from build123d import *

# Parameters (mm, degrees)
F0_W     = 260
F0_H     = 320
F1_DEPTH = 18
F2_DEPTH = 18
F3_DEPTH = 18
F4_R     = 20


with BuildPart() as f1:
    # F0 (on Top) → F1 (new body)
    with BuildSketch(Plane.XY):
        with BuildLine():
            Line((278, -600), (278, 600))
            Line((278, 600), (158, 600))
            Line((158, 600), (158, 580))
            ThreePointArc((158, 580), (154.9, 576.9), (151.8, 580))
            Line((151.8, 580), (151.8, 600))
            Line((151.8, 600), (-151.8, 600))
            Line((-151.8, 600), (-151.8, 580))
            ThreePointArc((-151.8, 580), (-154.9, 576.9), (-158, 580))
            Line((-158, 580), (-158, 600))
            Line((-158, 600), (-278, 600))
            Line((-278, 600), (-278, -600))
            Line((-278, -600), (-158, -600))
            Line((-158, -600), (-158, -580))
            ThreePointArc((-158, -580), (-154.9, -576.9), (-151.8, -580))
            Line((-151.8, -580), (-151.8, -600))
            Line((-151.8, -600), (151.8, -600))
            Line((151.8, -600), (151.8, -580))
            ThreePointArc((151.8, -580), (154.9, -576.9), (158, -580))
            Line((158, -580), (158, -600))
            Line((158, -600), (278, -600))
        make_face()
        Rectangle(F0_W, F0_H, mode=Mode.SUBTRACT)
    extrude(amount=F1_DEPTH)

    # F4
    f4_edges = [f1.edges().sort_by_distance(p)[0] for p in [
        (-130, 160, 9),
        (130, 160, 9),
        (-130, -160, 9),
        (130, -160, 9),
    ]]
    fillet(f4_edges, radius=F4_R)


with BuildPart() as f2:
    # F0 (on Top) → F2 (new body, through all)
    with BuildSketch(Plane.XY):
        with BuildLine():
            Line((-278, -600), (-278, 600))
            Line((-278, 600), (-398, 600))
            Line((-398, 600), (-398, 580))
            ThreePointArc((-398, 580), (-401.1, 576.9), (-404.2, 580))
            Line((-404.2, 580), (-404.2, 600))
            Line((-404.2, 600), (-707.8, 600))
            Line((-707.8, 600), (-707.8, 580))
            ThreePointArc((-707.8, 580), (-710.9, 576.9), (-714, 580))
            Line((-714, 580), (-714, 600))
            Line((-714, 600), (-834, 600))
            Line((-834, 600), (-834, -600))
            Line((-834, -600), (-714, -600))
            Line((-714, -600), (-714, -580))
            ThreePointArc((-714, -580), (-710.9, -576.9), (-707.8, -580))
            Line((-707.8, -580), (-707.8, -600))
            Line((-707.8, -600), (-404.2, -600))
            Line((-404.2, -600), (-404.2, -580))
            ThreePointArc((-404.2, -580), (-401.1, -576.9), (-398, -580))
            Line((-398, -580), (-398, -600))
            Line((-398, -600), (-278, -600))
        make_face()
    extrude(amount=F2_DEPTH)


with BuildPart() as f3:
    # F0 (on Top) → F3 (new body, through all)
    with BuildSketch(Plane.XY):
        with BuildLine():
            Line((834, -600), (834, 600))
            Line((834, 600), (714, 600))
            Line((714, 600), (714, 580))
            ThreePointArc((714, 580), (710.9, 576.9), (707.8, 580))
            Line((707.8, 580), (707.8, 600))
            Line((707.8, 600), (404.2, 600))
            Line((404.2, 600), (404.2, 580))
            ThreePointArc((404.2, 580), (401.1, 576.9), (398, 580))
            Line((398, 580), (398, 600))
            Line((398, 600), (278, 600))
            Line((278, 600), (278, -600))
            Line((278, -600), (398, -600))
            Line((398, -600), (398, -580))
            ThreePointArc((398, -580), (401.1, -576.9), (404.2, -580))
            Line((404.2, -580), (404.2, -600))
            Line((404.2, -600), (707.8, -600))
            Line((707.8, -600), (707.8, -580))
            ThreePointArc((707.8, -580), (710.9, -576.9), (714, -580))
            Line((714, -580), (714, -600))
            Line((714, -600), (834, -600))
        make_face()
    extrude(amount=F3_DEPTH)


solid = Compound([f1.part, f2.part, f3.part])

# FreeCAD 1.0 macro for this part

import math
import FreeCAD as App
import Part
import Sketcher
from FreeCAD import Vector


def edges_at(feature, points):
    """Names of the edges that pass closest to the given points."""
    edges = feature.Shape.Edges
    near = lambda p: min(range(len(edges)), key=lambda i: edges[i].distToShape(Part.Vertex(*p))[0])
    return sorted({f"Edge{near(p) + 1}" for p in points})

doc = App.newDocument("Part")
body = doc.addObject("PartDesign::Body", "Body")

# Sketch on XY plane
sketch1 = body.newObject("Sketcher::SketchObject", "Sketch")
sketch1.AttachmentSupport = (doc.getObject("XY_Plane"), [""])
sketch1.MapMode = "FlatFace"
sketch1.addGeometry([
    Part.LineSegment(Vector(278, -600, 0), Vector(278, 600, 0)),  # 0
    Part.LineSegment(Vector(278, 600, 0), Vector(158, 600, 0)),  # 1
    Part.LineSegment(Vector(158, 600, 0), Vector(158, 580, 0)),  # 2
    Part.ArcOfCircle(Part.Circle(Vector(154.9, 580, 0), Vector(0, 0, 1), 3.1), math.radians(180), math.radians(360)),  # 3
    Part.LineSegment(Vector(151.8, 580, 0), Vector(151.8, 600, 0)),  # 4
    Part.LineSegment(Vector(151.8, 600, 0), Vector(-151.8, 600, 0)),  # 5
    Part.LineSegment(Vector(-151.8, 600, 0), Vector(-151.8, 580, 0)),  # 6
    Part.ArcOfCircle(Part.Circle(Vector(-154.9, 580, 0), Vector(0, 0, 1), 3.1), math.radians(180), math.radians(360)),  # 7
    Part.LineSegment(Vector(-158, 580, 0), Vector(-158, 600, 0)),  # 8
    Part.LineSegment(Vector(-158, 600, 0), Vector(-278, 600, 0)),  # 9
    Part.LineSegment(Vector(-278, 600, 0), Vector(-278, -600, 0)),  # 10
    Part.LineSegment(Vector(-278, -600, 0), Vector(-158, -600, 0)),  # 11
    Part.LineSegment(Vector(-158, -600, 0), Vector(-158, -580, 0)),  # 12
    Part.ArcOfCircle(Part.Circle(Vector(-154.9, -580, 0), Vector(0, 0, 1), 3.1), math.radians(0), math.radians(180)),  # 13
    Part.LineSegment(Vector(-151.8, -580, 0), Vector(-151.8, -600, 0)),  # 14
    Part.LineSegment(Vector(-151.8, -600, 0), Vector(151.8, -600, 0)),  # 15
    Part.LineSegment(Vector(151.8, -600, 0), Vector(151.8, -580, 0)),  # 16
    Part.ArcOfCircle(Part.Circle(Vector(154.9, -580, 0), Vector(0, 0, 1), 3.1), math.radians(0), math.radians(180)),  # 17
    Part.LineSegment(Vector(158, -580, 0), Vector(158, -600, 0)),  # 18
    Part.LineSegment(Vector(158, -600, 0), Vector(278, -600, 0)),  # 19
    Part.LineSegment(Vector(130, -160, 0), Vector(-130, -160, 0)),  # 20
    Part.LineSegment(Vector(-130, -160, 0), Vector(-130, 160, 0)),  # 21
    Part.LineSegment(Vector(-130, 160, 0), Vector(130, 160, 0)),  # 22
    Part.LineSegment(Vector(130, 160, 0), Vector(130, -160, 0)),  # 23
], False)
sketch1.addConstraint([
    Sketcher.Constraint("Coincident", 0, 2, 1, 1),
    Sketcher.Constraint("Coincident", 1, 2, 2, 1),
    Sketcher.Constraint("Tangent", 2, 2, 3, 2),
    Sketcher.Constraint("Tangent", 3, 1, 4, 1),
    Sketcher.Constraint("Coincident", 4, 2, 5, 1),
    Sketcher.Constraint("Coincident", 5, 2, 6, 1),
    Sketcher.Constraint("Tangent", 6, 2, 7, 2),
    Sketcher.Constraint("Tangent", 7, 1, 8, 1),
    Sketcher.Constraint("Coincident", 8, 2, 9, 1),
    Sketcher.Constraint("Coincident", 9, 2, 10, 1),
    Sketcher.Constraint("Coincident", 10, 2, 11, 1),
    Sketcher.Constraint("Coincident", 11, 2, 12, 1),
    Sketcher.Constraint("Tangent", 12, 2, 13, 2),
    Sketcher.Constraint("Tangent", 13, 1, 14, 1),
    Sketcher.Constraint("Coincident", 14, 2, 15, 1),
    Sketcher.Constraint("Coincident", 15, 2, 16, 1),
    Sketcher.Constraint("Tangent", 16, 2, 17, 2),
    Sketcher.Constraint("Tangent", 17, 1, 18, 1),
    Sketcher.Constraint("Coincident", 18, 2, 19, 1),
    Sketcher.Constraint("Coincident", 19, 2, 0, 1),
    Sketcher.Constraint("Coincident", 20, 2, 21, 1),
    Sketcher.Constraint("Coincident", 21, 2, 22, 1),
    Sketcher.Constraint("Coincident", 22, 2, 23, 1),
    Sketcher.Constraint("Coincident", 23, 2, 20, 1),
    Sketcher.Constraint("Vertical", 0),
    Sketcher.Constraint("Horizontal", 1),
    Sketcher.Constraint("Vertical", 2),
    Sketcher.Constraint("Vertical", 4),
    Sketcher.Constraint("Horizontal", 5),
    Sketcher.Constraint("Vertical", 6),
    Sketcher.Constraint("Vertical", 8),
    Sketcher.Constraint("Horizontal", 9),
    Sketcher.Constraint("Vertical", 10),
    Sketcher.Constraint("Horizontal", 11),
    Sketcher.Constraint("Vertical", 12),
    Sketcher.Constraint("Vertical", 14),
    Sketcher.Constraint("Horizontal", 15),
    Sketcher.Constraint("Vertical", 16),
    Sketcher.Constraint("Vertical", 18),
    Sketcher.Constraint("Horizontal", 19),
    Sketcher.Constraint("Horizontal", 20),
    Sketcher.Constraint("Vertical", 21),
    Sketcher.Constraint("Horizontal", 22),
    Sketcher.Constraint("Vertical", 23),
    Sketcher.Constraint("Equal", 3, 7),
    Sketcher.Constraint("Equal", 7, 13),
    Sketcher.Constraint("Equal", 13, 17),
    Sketcher.Constraint("Symmetric", 3, 3, 13, 3, -1, 1),
    Sketcher.Constraint("Symmetric", 7, 3, 17, 3, -1, 1),
    Sketcher.Constraint("Symmetric", 0, 2, 10, 2, -1, 1),
    Sketcher.Constraint("Symmetric", 20, 2, 22, 2, -1, 1),
    Sketcher.Constraint("Symmetric", 3, 3, 7, 3, -2),
    Sketcher.Constraint("Horizontal", 1, 2, 4, 2),
    Sketcher.Constraint("Horizontal", 5, 2, 8, 2),
    Sketcher.Constraint("Horizontal", 11, 2, 14, 2),
    Sketcher.Constraint("Horizontal", 15, 2, 18, 2),
    Sketcher.Constraint("Radius", 3, 3.1),
    Sketcher.Constraint("DistanceX", 1, 2, 1, 1, 120.0),
    Sketcher.Constraint("DistanceX", 20, 2, 20, 1, 260.0),
    Sketcher.Constraint("DistanceY", 0, 1, 0, 2, 1200.0),
    Sketcher.Constraint("DistanceY", 2, 2, 2, 1, 20.0),
    Sketcher.Constraint("DistanceY", 21, 1, 21, 2, 320.0),
    Sketcher.Constraint("DistanceX", 5, 2, 5, 1, 303.6),
])
pad1 = body.newObject("PartDesign::Pad", "Pad")
pad1.Profile = sketch1
pad1.Length = 18
doc.recompute()

fillet = body.newObject("PartDesign::Fillet", "Fillet")
fillet.Base = (pad1, edges_at(pad1, [
    (-130, 160, 9),
    (130, 160, 9),
    (-130, -160, 9),
    (130, -160, 9),
]))
fillet.Radius = 20
body2 = doc.addObject("PartDesign::Body", "Body001")

# Sketch on XY plane
sketch2 = body2.newObject("Sketcher::SketchObject", "Sketch001")
sketch2.AttachmentSupport = (doc.getObject("XY_Plane001"), [""])
sketch2.MapMode = "FlatFace"
sketch2.addGeometry([
    Part.LineSegment(Vector(-278, -600, 0), Vector(-278, 600, 0)),  # 0
    Part.LineSegment(Vector(-278, 600, 0), Vector(-398, 600, 0)),  # 1
    Part.LineSegment(Vector(-398, 600, 0), Vector(-398, 580, 0)),  # 2
    Part.ArcOfCircle(Part.Circle(Vector(-401.1, 580, 0), Vector(0, 0, 1), 3.1), math.radians(180), math.radians(360)),  # 3
    Part.LineSegment(Vector(-404.2, 580, 0), Vector(-404.2, 600, 0)),  # 4
    Part.LineSegment(Vector(-404.2, 600, 0), Vector(-707.8, 600, 0)),  # 5
    Part.LineSegment(Vector(-707.8, 600, 0), Vector(-707.8, 580, 0)),  # 6
    Part.ArcOfCircle(Part.Circle(Vector(-710.9, 580, 0), Vector(0, 0, 1), 3.1), math.radians(180), math.radians(360)),  # 7
    Part.LineSegment(Vector(-714, 580, 0), Vector(-714, 600, 0)),  # 8
    Part.LineSegment(Vector(-714, 600, 0), Vector(-834, 600, 0)),  # 9
    Part.LineSegment(Vector(-834, 600, 0), Vector(-834, -600, 0)),  # 10
    Part.LineSegment(Vector(-834, -600, 0), Vector(-714, -600, 0)),  # 11
    Part.LineSegment(Vector(-714, -600, 0), Vector(-714, -580, 0)),  # 12
    Part.ArcOfCircle(Part.Circle(Vector(-710.9, -580, 0), Vector(0, 0, 1), 3.1), math.radians(0), math.radians(180)),  # 13
    Part.LineSegment(Vector(-707.8, -580, 0), Vector(-707.8, -600, 0)),  # 14
    Part.LineSegment(Vector(-707.8, -600, 0), Vector(-404.2, -600, 0)),  # 15
    Part.LineSegment(Vector(-404.2, -600, 0), Vector(-404.2, -580, 0)),  # 16
    Part.ArcOfCircle(Part.Circle(Vector(-401.1, -580, 0), Vector(0, 0, 1), 3.1), math.radians(0), math.radians(180)),  # 17
    Part.LineSegment(Vector(-398, -580, 0), Vector(-398, -600, 0)),  # 18
    Part.LineSegment(Vector(-398, -600, 0), Vector(-278, -600, 0)),  # 19
], False)
sketch2.addConstraint([
    Sketcher.Constraint("Coincident", 0, 2, 1, 1),
    Sketcher.Constraint("Coincident", 1, 2, 2, 1),
    Sketcher.Constraint("Tangent", 2, 2, 3, 2),
    Sketcher.Constraint("Tangent", 3, 1, 4, 1),
    Sketcher.Constraint("Coincident", 4, 2, 5, 1),
    Sketcher.Constraint("Coincident", 5, 2, 6, 1),
    Sketcher.Constraint("Tangent", 6, 2, 7, 2),
    Sketcher.Constraint("Tangent", 7, 1, 8, 1),
    Sketcher.Constraint("Coincident", 8, 2, 9, 1),
    Sketcher.Constraint("Coincident", 9, 2, 10, 1),
    Sketcher.Constraint("Coincident", 10, 2, 11, 1),
    Sketcher.Constraint("Coincident", 11, 2, 12, 1),
    Sketcher.Constraint("Tangent", 12, 2, 13, 2),
    Sketcher.Constraint("Tangent", 13, 1, 14, 1),
    Sketcher.Constraint("Coincident", 14, 2, 15, 1),
    Sketcher.Constraint("Coincident", 15, 2, 16, 1),
    Sketcher.Constraint("Tangent", 16, 2, 17, 2),
    Sketcher.Constraint("Tangent", 17, 1, 18, 1),
    Sketcher.Constraint("Coincident", 18, 2, 19, 1),
    Sketcher.Constraint("Coincident", 19, 2, 0, 1),
    Sketcher.Constraint("Vertical", 0),
    Sketcher.Constraint("Horizontal", 1),
    Sketcher.Constraint("Vertical", 2),
    Sketcher.Constraint("Vertical", 4),
    Sketcher.Constraint("Horizontal", 5),
    Sketcher.Constraint("Vertical", 6),
    Sketcher.Constraint("Vertical", 8),
    Sketcher.Constraint("Horizontal", 9),
    Sketcher.Constraint("Vertical", 10),
    Sketcher.Constraint("Horizontal", 11),
    Sketcher.Constraint("Vertical", 12),
    Sketcher.Constraint("Vertical", 14),
    Sketcher.Constraint("Horizontal", 15),
    Sketcher.Constraint("Vertical", 16),
    Sketcher.Constraint("Vertical", 18),
    Sketcher.Constraint("Horizontal", 19),
    Sketcher.Constraint("Equal", 3, 7),
    Sketcher.Constraint("Equal", 7, 13),
    Sketcher.Constraint("Equal", 13, 17),
    Sketcher.Constraint("Symmetric", 7, 3, 13, 3, -1),
    Sketcher.Constraint("Symmetric", 3, 3, 17, 3, -1),
    Sketcher.Constraint("Horizontal", 3, 3, 7, 3),
    Sketcher.Constraint("Horizontal", 1, 2, 4, 2),
    Sketcher.Constraint("Horizontal", 5, 2, 8, 2),
    Sketcher.Constraint("Horizontal", 11, 2, 14, 2),
    Sketcher.Constraint("Horizontal", 15, 2, 18, 2),
    Sketcher.Constraint("Equal", 1, 9),
    Sketcher.Constraint("Equal", 8, 12),
    Sketcher.Constraint("Radius", 3, 3.1),
    Sketcher.Constraint("DistanceX", 1, 2, 1, 1, 120.0),
    Sketcher.Constraint("DistanceY", 0, 1, 0, 2, 1200.0),
    Sketcher.Constraint("DistanceY", 2, 2, 2, 1, 20.0),
    Sketcher.Constraint("DistanceX", 5, 2, 5, 1, 303.6),
    Sketcher.Constraint("DistanceX", 0, 2, -1, 1, 278.0),
])
pad2 = body2.newObject("PartDesign::Pad", "Pad001")
pad2.Profile = sketch2
pad2.Length = 18
body3 = doc.addObject("PartDesign::Body", "Body002")

# Sketch on XY plane
sketch3 = body3.newObject("Sketcher::SketchObject", "Sketch002")
sketch3.AttachmentSupport = (doc.getObject("XY_Plane002"), [""])
sketch3.MapMode = "FlatFace"
sketch3.addGeometry([
    Part.LineSegment(Vector(834, -600, 0), Vector(834, 600, 0)),  # 0
    Part.LineSegment(Vector(834, 600, 0), Vector(714, 600, 0)),  # 1
    Part.LineSegment(Vector(714, 600, 0), Vector(714, 580, 0)),  # 2
    Part.ArcOfCircle(Part.Circle(Vector(710.9, 580, 0), Vector(0, 0, 1), 3.1), math.radians(180), math.radians(360)),  # 3
    Part.LineSegment(Vector(707.8, 580, 0), Vector(707.8, 600, 0)),  # 4
    Part.LineSegment(Vector(707.8, 600, 0), Vector(404.2, 600, 0)),  # 5
    Part.LineSegment(Vector(404.2, 600, 0), Vector(404.2, 580, 0)),  # 6
    Part.ArcOfCircle(Part.Circle(Vector(401.1, 580, 0), Vector(0, 0, 1), 3.1), math.radians(180), math.radians(360)),  # 7
    Part.LineSegment(Vector(398, 580, 0), Vector(398, 600, 0)),  # 8
    Part.LineSegment(Vector(398, 600, 0), Vector(278, 600, 0)),  # 9
    Part.LineSegment(Vector(278, 600, 0), Vector(278, -600, 0)),  # 10
    Part.LineSegment(Vector(278, -600, 0), Vector(398, -600, 0)),  # 11
    Part.LineSegment(Vector(398, -600, 0), Vector(398, -580, 0)),  # 12
    Part.ArcOfCircle(Part.Circle(Vector(401.1, -580, 0), Vector(0, 0, 1), 3.1), math.radians(0), math.radians(180)),  # 13
    Part.LineSegment(Vector(404.2, -580, 0), Vector(404.2, -600, 0)),  # 14
    Part.LineSegment(Vector(404.2, -600, 0), Vector(707.8, -600, 0)),  # 15
    Part.LineSegment(Vector(707.8, -600, 0), Vector(707.8, -580, 0)),  # 16
    Part.ArcOfCircle(Part.Circle(Vector(710.9, -580, 0), Vector(0, 0, 1), 3.1), math.radians(0), math.radians(180)),  # 17
    Part.LineSegment(Vector(714, -580, 0), Vector(714, -600, 0)),  # 18
    Part.LineSegment(Vector(714, -600, 0), Vector(834, -600, 0)),  # 19
], False)
sketch3.addConstraint([
    Sketcher.Constraint("Coincident", 0, 2, 1, 1),
    Sketcher.Constraint("Coincident", 1, 2, 2, 1),
    Sketcher.Constraint("Tangent", 2, 2, 3, 2),
    Sketcher.Constraint("Tangent", 3, 1, 4, 1),
    Sketcher.Constraint("Coincident", 4, 2, 5, 1),
    Sketcher.Constraint("Coincident", 5, 2, 6, 1),
    Sketcher.Constraint("Tangent", 6, 2, 7, 2),
    Sketcher.Constraint("Tangent", 7, 1, 8, 1),
    Sketcher.Constraint("Coincident", 8, 2, 9, 1),
    Sketcher.Constraint("Coincident", 9, 2, 10, 1),
    Sketcher.Constraint("Coincident", 10, 2, 11, 1),
    Sketcher.Constraint("Coincident", 11, 2, 12, 1),
    Sketcher.Constraint("Tangent", 12, 2, 13, 2),
    Sketcher.Constraint("Tangent", 13, 1, 14, 1),
    Sketcher.Constraint("Coincident", 14, 2, 15, 1),
    Sketcher.Constraint("Coincident", 15, 2, 16, 1),
    Sketcher.Constraint("Tangent", 16, 2, 17, 2),
    Sketcher.Constraint("Tangent", 17, 1, 18, 1),
    Sketcher.Constraint("Coincident", 18, 2, 19, 1),
    Sketcher.Constraint("Coincident", 19, 2, 0, 1),
    Sketcher.Constraint("Vertical", 0),
    Sketcher.Constraint("Horizontal", 1),
    Sketcher.Constraint("Vertical", 2),
    Sketcher.Constraint("Vertical", 4),
    Sketcher.Constraint("Horizontal", 5),
    Sketcher.Constraint("Vertical", 6),
    Sketcher.Constraint("Vertical", 8),
    Sketcher.Constraint("Horizontal", 9),
    Sketcher.Constraint("Vertical", 10),
    Sketcher.Constraint("Horizontal", 11),
    Sketcher.Constraint("Vertical", 12),
    Sketcher.Constraint("Vertical", 14),
    Sketcher.Constraint("Horizontal", 15),
    Sketcher.Constraint("Vertical", 16),
    Sketcher.Constraint("Vertical", 18),
    Sketcher.Constraint("Horizontal", 19),
    Sketcher.Constraint("Equal", 3, 7),
    Sketcher.Constraint("Equal", 7, 13),
    Sketcher.Constraint("Equal", 13, 17),
    Sketcher.Constraint("Symmetric", 7, 3, 13, 3, -1),
    Sketcher.Constraint("Symmetric", 3, 3, 17, 3, -1),
    Sketcher.Constraint("Horizontal", 3, 3, 7, 3),
    Sketcher.Constraint("Horizontal", 1, 2, 4, 2),
    Sketcher.Constraint("Horizontal", 5, 2, 8, 2),
    Sketcher.Constraint("Horizontal", 11, 2, 14, 2),
    Sketcher.Constraint("Horizontal", 15, 2, 18, 2),
    Sketcher.Constraint("Equal", 1, 9),
    Sketcher.Constraint("Equal", 8, 12),
    Sketcher.Constraint("Radius", 3, 3.1),
    Sketcher.Constraint("DistanceX", 1, 2, 1, 1, 120.0),
    Sketcher.Constraint("DistanceY", 0, 1, 0, 2, 1200.0),
    Sketcher.Constraint("DistanceY", 2, 2, 2, 1, 20.0),
    Sketcher.Constraint("DistanceX", 5, 2, 5, 1, 303.6),
    Sketcher.Constraint("DistanceX", -1, 1, 0, 2, 834.0),
])
pad3 = body3.newObject("PartDesign::Pad", "Pad002")
pad3.Profile = sketch3
pad3.Length = 18

doc.recompute()
